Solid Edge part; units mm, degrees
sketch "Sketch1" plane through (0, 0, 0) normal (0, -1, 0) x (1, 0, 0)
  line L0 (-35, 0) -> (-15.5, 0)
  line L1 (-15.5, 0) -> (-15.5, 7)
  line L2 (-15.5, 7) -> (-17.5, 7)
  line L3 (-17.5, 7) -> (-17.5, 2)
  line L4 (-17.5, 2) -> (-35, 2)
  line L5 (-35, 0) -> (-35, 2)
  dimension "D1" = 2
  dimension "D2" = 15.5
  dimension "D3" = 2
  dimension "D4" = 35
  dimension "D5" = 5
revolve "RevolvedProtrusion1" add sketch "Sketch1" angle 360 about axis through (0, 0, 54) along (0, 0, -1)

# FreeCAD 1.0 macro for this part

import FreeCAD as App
import Part
import Sketcher
from FreeCAD import Vector


def add_polygon(sketch, points):
    """Adds a closed chain of lines whose ends are joined by coincident constraints."""
    first, n = sketch.GeometryCount, len(points)
    for a, b in zip(points, points[1:] + points[:1]):
        sketch.addGeometry(Part.LineSegment(App.Vector(*a, 0), App.Vector(*b, 0)), False)
    for i in range(n):
        sketch.addConstraint(Sketcher.Constraint("Coincident", first + i, 2, first + (i + 1) % n, 1))

doc = App.newDocument("Part")
body = doc.addObject("PartDesign::Body", "Body")

# Sketch on XZ plane
sketch1 = doc.addObject("Sketcher::SketchObject", "Sketch")
body.addObject(sketch1)
sketch1.AttachmentSupport = (doc.XZ_Plane, [""])
sketch1.MapMode = "FlatFace"
add_polygon(sketch1, [(-35, 2), (-35, 0), (-15.5, 0), (-15.5, 7), (-17.5, 7), (-17.5, 2)])  # lines 0-5
sketch1.addConstraint([
    Sketcher.Constraint("Vertical", 0),
    Sketcher.Constraint("Horizontal", 1),
    Sketcher.Constraint("Vertical", 2),
    Sketcher.Constraint("Horizontal", 3),
    Sketcher.Constraint("Vertical", 4),
    Sketcher.Constraint("Horizontal", 5),
    Sketcher.Constraint("PointOnObject", 0, 2, -1),
    Sketcher.Constraint("Equal", 3, 0),
    Sketcher.Constraint("DistanceX", 0, 2, -1, 1, 35.0),
    Sketcher.Constraint("DistanceX", 1, 2, -1, 1, 15.5),
    Sketcher.Constraint("DistanceX", 3, 2, 3, 1, 2.0),
    Sketcher.Constraint("DistanceY", 2, 1, 2, 2, 7.0),
])
revolution = doc.addObject("PartDesign::Revolution", "Revolution")
body.addObject(revolution)
revolution.Profile = sketch1
revolution.ReferenceAxis = (sketch1, ["V_Axis"])
revolution.Angle = 360

doc.recompute()
